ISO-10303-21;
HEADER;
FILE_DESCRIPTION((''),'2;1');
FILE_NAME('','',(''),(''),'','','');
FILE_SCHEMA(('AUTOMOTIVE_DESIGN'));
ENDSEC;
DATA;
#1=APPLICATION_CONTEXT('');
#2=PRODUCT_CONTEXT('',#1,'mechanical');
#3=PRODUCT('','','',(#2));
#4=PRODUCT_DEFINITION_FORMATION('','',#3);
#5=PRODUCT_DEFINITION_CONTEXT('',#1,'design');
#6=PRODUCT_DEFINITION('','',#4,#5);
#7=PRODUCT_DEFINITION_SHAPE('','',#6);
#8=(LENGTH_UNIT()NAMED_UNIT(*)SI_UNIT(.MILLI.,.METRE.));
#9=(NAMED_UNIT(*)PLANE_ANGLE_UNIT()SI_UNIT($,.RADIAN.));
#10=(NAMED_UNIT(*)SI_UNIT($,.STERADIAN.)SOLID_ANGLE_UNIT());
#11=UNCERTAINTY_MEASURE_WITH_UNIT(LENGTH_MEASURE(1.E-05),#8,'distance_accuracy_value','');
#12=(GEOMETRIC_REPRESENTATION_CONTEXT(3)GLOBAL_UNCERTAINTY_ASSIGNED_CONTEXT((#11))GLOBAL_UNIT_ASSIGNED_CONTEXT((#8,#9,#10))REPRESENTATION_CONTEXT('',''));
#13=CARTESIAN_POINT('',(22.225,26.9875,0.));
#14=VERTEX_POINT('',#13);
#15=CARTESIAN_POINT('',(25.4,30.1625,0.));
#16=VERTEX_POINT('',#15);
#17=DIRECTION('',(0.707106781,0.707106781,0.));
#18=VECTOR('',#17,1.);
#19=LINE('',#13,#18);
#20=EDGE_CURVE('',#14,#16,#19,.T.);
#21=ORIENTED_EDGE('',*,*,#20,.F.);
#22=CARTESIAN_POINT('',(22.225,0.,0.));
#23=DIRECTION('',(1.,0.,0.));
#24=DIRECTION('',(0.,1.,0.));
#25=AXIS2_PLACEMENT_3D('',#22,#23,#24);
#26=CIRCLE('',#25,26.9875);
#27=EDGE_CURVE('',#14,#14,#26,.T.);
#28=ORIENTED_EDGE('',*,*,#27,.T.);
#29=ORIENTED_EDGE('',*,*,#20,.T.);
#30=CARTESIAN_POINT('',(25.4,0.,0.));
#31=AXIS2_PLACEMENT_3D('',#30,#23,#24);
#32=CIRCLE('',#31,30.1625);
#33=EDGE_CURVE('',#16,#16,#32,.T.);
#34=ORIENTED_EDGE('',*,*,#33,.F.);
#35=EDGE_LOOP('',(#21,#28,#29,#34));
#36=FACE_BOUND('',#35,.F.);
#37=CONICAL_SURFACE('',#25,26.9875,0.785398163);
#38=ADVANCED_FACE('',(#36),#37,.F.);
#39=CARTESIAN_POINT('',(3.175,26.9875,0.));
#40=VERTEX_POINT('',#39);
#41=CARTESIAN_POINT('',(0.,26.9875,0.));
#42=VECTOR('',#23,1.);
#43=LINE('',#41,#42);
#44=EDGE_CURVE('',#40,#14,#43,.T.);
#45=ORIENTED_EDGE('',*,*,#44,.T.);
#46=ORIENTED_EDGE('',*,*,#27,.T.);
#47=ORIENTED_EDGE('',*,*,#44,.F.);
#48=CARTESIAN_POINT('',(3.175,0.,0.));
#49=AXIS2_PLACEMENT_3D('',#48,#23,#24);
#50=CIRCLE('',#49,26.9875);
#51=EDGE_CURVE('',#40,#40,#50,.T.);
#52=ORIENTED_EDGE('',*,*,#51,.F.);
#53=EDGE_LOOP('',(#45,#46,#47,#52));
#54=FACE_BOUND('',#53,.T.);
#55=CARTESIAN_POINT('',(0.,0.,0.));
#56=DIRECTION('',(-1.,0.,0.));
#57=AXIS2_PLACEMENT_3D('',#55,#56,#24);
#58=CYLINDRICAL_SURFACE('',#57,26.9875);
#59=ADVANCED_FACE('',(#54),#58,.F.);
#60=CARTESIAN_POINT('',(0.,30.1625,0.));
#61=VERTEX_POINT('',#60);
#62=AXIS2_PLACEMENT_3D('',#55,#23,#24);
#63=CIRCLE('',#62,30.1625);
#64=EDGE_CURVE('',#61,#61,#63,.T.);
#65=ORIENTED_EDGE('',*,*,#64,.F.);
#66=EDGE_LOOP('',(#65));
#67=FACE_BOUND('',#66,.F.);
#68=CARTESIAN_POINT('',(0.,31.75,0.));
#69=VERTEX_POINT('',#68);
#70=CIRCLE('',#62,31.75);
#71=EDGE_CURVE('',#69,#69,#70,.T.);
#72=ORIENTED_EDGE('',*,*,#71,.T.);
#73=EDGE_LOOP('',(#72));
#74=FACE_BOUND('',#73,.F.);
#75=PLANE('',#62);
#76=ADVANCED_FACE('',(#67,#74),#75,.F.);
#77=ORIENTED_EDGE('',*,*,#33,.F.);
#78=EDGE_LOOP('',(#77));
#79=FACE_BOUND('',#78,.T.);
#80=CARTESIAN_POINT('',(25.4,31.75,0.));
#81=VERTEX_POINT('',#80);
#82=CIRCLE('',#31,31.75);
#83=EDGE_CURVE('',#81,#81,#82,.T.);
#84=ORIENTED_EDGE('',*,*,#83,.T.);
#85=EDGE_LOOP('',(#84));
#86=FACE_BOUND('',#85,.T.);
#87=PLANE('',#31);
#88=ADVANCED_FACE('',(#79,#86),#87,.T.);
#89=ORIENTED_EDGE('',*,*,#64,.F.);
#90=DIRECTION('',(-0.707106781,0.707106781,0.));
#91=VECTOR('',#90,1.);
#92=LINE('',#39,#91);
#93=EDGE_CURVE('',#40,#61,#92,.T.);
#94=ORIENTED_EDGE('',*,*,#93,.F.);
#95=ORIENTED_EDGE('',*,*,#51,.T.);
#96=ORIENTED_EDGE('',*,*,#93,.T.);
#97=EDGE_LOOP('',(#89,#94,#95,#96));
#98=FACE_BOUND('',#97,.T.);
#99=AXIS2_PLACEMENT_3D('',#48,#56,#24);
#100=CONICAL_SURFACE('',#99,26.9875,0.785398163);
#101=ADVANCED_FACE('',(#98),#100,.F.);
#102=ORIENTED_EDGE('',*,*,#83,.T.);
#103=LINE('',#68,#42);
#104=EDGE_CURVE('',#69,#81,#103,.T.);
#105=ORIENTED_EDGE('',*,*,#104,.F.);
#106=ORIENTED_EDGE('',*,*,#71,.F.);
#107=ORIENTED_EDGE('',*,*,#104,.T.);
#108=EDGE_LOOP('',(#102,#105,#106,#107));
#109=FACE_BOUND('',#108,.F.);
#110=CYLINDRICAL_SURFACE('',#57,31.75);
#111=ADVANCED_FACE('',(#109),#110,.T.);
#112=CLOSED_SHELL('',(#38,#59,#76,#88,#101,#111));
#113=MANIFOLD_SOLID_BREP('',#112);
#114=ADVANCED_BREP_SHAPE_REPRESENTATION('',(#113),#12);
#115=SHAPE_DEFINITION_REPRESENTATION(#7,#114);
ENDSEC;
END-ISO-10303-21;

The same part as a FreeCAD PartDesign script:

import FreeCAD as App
import Part
import Sketcher

V = App.Vector
Q = App.Units.Quantity


def edges_at(feature, points):
    """Names of the edges that pass closest to the given points."""
    edges = feature.Shape.Edges
    near = lambda p: min(range(len(edges)), key=lambda i: edges[i].distToShape(Part.Vertex(*p))[0])
    return sorted({f"Edge{near(p) + 1}" for p in points})

doc = App.newDocument("Part")
body = doc.addObject("PartDesign::Body", "Body")

# Sketch on YZ plane
sketch1 = doc.addObject("Sketcher::SketchObject", "Sketch")
body.addObject(sketch1)
sketch1.AttachmentSupport = (doc.YZ_Plane, [""])
sketch1.MapMode = "FlatFace"
sketch1.addGeometry([
    Part.Circle(V(0, 0, 0), V(0, 0, 1), 32),
    Part.Circle(V(0, 0, 0), V(0, 0, 1), 27),
], False)
sketch1.addConstraint([
    Sketcher.Constraint("Coincident", 0, 3, -1, 1),
    Sketcher.Constraint("Coincident", 1, 3, -1, 1),
    Sketcher.Constraint("Diameter", 0, Q("2.5 in")),
    Sketcher.Constraint("Diameter", 1, Q("2.125 in")),
])
pad1 = doc.addObject("PartDesign::Pad", "Pad")
body.addObject(pad1)
pad1.Profile = sketch1
pad1.Length = Q("1 in")
doc.recompute()

chamfer = doc.addObject("PartDesign::Chamfer", "Chamfer")
body.addObject(chamfer)
chamfer.Base = (pad1, edges_at(pad1, [(0, -26.988, 0), (25.4, -26.988, 0)]))
chamfer.Size = Q("0.125 in")

doc.recompute()
